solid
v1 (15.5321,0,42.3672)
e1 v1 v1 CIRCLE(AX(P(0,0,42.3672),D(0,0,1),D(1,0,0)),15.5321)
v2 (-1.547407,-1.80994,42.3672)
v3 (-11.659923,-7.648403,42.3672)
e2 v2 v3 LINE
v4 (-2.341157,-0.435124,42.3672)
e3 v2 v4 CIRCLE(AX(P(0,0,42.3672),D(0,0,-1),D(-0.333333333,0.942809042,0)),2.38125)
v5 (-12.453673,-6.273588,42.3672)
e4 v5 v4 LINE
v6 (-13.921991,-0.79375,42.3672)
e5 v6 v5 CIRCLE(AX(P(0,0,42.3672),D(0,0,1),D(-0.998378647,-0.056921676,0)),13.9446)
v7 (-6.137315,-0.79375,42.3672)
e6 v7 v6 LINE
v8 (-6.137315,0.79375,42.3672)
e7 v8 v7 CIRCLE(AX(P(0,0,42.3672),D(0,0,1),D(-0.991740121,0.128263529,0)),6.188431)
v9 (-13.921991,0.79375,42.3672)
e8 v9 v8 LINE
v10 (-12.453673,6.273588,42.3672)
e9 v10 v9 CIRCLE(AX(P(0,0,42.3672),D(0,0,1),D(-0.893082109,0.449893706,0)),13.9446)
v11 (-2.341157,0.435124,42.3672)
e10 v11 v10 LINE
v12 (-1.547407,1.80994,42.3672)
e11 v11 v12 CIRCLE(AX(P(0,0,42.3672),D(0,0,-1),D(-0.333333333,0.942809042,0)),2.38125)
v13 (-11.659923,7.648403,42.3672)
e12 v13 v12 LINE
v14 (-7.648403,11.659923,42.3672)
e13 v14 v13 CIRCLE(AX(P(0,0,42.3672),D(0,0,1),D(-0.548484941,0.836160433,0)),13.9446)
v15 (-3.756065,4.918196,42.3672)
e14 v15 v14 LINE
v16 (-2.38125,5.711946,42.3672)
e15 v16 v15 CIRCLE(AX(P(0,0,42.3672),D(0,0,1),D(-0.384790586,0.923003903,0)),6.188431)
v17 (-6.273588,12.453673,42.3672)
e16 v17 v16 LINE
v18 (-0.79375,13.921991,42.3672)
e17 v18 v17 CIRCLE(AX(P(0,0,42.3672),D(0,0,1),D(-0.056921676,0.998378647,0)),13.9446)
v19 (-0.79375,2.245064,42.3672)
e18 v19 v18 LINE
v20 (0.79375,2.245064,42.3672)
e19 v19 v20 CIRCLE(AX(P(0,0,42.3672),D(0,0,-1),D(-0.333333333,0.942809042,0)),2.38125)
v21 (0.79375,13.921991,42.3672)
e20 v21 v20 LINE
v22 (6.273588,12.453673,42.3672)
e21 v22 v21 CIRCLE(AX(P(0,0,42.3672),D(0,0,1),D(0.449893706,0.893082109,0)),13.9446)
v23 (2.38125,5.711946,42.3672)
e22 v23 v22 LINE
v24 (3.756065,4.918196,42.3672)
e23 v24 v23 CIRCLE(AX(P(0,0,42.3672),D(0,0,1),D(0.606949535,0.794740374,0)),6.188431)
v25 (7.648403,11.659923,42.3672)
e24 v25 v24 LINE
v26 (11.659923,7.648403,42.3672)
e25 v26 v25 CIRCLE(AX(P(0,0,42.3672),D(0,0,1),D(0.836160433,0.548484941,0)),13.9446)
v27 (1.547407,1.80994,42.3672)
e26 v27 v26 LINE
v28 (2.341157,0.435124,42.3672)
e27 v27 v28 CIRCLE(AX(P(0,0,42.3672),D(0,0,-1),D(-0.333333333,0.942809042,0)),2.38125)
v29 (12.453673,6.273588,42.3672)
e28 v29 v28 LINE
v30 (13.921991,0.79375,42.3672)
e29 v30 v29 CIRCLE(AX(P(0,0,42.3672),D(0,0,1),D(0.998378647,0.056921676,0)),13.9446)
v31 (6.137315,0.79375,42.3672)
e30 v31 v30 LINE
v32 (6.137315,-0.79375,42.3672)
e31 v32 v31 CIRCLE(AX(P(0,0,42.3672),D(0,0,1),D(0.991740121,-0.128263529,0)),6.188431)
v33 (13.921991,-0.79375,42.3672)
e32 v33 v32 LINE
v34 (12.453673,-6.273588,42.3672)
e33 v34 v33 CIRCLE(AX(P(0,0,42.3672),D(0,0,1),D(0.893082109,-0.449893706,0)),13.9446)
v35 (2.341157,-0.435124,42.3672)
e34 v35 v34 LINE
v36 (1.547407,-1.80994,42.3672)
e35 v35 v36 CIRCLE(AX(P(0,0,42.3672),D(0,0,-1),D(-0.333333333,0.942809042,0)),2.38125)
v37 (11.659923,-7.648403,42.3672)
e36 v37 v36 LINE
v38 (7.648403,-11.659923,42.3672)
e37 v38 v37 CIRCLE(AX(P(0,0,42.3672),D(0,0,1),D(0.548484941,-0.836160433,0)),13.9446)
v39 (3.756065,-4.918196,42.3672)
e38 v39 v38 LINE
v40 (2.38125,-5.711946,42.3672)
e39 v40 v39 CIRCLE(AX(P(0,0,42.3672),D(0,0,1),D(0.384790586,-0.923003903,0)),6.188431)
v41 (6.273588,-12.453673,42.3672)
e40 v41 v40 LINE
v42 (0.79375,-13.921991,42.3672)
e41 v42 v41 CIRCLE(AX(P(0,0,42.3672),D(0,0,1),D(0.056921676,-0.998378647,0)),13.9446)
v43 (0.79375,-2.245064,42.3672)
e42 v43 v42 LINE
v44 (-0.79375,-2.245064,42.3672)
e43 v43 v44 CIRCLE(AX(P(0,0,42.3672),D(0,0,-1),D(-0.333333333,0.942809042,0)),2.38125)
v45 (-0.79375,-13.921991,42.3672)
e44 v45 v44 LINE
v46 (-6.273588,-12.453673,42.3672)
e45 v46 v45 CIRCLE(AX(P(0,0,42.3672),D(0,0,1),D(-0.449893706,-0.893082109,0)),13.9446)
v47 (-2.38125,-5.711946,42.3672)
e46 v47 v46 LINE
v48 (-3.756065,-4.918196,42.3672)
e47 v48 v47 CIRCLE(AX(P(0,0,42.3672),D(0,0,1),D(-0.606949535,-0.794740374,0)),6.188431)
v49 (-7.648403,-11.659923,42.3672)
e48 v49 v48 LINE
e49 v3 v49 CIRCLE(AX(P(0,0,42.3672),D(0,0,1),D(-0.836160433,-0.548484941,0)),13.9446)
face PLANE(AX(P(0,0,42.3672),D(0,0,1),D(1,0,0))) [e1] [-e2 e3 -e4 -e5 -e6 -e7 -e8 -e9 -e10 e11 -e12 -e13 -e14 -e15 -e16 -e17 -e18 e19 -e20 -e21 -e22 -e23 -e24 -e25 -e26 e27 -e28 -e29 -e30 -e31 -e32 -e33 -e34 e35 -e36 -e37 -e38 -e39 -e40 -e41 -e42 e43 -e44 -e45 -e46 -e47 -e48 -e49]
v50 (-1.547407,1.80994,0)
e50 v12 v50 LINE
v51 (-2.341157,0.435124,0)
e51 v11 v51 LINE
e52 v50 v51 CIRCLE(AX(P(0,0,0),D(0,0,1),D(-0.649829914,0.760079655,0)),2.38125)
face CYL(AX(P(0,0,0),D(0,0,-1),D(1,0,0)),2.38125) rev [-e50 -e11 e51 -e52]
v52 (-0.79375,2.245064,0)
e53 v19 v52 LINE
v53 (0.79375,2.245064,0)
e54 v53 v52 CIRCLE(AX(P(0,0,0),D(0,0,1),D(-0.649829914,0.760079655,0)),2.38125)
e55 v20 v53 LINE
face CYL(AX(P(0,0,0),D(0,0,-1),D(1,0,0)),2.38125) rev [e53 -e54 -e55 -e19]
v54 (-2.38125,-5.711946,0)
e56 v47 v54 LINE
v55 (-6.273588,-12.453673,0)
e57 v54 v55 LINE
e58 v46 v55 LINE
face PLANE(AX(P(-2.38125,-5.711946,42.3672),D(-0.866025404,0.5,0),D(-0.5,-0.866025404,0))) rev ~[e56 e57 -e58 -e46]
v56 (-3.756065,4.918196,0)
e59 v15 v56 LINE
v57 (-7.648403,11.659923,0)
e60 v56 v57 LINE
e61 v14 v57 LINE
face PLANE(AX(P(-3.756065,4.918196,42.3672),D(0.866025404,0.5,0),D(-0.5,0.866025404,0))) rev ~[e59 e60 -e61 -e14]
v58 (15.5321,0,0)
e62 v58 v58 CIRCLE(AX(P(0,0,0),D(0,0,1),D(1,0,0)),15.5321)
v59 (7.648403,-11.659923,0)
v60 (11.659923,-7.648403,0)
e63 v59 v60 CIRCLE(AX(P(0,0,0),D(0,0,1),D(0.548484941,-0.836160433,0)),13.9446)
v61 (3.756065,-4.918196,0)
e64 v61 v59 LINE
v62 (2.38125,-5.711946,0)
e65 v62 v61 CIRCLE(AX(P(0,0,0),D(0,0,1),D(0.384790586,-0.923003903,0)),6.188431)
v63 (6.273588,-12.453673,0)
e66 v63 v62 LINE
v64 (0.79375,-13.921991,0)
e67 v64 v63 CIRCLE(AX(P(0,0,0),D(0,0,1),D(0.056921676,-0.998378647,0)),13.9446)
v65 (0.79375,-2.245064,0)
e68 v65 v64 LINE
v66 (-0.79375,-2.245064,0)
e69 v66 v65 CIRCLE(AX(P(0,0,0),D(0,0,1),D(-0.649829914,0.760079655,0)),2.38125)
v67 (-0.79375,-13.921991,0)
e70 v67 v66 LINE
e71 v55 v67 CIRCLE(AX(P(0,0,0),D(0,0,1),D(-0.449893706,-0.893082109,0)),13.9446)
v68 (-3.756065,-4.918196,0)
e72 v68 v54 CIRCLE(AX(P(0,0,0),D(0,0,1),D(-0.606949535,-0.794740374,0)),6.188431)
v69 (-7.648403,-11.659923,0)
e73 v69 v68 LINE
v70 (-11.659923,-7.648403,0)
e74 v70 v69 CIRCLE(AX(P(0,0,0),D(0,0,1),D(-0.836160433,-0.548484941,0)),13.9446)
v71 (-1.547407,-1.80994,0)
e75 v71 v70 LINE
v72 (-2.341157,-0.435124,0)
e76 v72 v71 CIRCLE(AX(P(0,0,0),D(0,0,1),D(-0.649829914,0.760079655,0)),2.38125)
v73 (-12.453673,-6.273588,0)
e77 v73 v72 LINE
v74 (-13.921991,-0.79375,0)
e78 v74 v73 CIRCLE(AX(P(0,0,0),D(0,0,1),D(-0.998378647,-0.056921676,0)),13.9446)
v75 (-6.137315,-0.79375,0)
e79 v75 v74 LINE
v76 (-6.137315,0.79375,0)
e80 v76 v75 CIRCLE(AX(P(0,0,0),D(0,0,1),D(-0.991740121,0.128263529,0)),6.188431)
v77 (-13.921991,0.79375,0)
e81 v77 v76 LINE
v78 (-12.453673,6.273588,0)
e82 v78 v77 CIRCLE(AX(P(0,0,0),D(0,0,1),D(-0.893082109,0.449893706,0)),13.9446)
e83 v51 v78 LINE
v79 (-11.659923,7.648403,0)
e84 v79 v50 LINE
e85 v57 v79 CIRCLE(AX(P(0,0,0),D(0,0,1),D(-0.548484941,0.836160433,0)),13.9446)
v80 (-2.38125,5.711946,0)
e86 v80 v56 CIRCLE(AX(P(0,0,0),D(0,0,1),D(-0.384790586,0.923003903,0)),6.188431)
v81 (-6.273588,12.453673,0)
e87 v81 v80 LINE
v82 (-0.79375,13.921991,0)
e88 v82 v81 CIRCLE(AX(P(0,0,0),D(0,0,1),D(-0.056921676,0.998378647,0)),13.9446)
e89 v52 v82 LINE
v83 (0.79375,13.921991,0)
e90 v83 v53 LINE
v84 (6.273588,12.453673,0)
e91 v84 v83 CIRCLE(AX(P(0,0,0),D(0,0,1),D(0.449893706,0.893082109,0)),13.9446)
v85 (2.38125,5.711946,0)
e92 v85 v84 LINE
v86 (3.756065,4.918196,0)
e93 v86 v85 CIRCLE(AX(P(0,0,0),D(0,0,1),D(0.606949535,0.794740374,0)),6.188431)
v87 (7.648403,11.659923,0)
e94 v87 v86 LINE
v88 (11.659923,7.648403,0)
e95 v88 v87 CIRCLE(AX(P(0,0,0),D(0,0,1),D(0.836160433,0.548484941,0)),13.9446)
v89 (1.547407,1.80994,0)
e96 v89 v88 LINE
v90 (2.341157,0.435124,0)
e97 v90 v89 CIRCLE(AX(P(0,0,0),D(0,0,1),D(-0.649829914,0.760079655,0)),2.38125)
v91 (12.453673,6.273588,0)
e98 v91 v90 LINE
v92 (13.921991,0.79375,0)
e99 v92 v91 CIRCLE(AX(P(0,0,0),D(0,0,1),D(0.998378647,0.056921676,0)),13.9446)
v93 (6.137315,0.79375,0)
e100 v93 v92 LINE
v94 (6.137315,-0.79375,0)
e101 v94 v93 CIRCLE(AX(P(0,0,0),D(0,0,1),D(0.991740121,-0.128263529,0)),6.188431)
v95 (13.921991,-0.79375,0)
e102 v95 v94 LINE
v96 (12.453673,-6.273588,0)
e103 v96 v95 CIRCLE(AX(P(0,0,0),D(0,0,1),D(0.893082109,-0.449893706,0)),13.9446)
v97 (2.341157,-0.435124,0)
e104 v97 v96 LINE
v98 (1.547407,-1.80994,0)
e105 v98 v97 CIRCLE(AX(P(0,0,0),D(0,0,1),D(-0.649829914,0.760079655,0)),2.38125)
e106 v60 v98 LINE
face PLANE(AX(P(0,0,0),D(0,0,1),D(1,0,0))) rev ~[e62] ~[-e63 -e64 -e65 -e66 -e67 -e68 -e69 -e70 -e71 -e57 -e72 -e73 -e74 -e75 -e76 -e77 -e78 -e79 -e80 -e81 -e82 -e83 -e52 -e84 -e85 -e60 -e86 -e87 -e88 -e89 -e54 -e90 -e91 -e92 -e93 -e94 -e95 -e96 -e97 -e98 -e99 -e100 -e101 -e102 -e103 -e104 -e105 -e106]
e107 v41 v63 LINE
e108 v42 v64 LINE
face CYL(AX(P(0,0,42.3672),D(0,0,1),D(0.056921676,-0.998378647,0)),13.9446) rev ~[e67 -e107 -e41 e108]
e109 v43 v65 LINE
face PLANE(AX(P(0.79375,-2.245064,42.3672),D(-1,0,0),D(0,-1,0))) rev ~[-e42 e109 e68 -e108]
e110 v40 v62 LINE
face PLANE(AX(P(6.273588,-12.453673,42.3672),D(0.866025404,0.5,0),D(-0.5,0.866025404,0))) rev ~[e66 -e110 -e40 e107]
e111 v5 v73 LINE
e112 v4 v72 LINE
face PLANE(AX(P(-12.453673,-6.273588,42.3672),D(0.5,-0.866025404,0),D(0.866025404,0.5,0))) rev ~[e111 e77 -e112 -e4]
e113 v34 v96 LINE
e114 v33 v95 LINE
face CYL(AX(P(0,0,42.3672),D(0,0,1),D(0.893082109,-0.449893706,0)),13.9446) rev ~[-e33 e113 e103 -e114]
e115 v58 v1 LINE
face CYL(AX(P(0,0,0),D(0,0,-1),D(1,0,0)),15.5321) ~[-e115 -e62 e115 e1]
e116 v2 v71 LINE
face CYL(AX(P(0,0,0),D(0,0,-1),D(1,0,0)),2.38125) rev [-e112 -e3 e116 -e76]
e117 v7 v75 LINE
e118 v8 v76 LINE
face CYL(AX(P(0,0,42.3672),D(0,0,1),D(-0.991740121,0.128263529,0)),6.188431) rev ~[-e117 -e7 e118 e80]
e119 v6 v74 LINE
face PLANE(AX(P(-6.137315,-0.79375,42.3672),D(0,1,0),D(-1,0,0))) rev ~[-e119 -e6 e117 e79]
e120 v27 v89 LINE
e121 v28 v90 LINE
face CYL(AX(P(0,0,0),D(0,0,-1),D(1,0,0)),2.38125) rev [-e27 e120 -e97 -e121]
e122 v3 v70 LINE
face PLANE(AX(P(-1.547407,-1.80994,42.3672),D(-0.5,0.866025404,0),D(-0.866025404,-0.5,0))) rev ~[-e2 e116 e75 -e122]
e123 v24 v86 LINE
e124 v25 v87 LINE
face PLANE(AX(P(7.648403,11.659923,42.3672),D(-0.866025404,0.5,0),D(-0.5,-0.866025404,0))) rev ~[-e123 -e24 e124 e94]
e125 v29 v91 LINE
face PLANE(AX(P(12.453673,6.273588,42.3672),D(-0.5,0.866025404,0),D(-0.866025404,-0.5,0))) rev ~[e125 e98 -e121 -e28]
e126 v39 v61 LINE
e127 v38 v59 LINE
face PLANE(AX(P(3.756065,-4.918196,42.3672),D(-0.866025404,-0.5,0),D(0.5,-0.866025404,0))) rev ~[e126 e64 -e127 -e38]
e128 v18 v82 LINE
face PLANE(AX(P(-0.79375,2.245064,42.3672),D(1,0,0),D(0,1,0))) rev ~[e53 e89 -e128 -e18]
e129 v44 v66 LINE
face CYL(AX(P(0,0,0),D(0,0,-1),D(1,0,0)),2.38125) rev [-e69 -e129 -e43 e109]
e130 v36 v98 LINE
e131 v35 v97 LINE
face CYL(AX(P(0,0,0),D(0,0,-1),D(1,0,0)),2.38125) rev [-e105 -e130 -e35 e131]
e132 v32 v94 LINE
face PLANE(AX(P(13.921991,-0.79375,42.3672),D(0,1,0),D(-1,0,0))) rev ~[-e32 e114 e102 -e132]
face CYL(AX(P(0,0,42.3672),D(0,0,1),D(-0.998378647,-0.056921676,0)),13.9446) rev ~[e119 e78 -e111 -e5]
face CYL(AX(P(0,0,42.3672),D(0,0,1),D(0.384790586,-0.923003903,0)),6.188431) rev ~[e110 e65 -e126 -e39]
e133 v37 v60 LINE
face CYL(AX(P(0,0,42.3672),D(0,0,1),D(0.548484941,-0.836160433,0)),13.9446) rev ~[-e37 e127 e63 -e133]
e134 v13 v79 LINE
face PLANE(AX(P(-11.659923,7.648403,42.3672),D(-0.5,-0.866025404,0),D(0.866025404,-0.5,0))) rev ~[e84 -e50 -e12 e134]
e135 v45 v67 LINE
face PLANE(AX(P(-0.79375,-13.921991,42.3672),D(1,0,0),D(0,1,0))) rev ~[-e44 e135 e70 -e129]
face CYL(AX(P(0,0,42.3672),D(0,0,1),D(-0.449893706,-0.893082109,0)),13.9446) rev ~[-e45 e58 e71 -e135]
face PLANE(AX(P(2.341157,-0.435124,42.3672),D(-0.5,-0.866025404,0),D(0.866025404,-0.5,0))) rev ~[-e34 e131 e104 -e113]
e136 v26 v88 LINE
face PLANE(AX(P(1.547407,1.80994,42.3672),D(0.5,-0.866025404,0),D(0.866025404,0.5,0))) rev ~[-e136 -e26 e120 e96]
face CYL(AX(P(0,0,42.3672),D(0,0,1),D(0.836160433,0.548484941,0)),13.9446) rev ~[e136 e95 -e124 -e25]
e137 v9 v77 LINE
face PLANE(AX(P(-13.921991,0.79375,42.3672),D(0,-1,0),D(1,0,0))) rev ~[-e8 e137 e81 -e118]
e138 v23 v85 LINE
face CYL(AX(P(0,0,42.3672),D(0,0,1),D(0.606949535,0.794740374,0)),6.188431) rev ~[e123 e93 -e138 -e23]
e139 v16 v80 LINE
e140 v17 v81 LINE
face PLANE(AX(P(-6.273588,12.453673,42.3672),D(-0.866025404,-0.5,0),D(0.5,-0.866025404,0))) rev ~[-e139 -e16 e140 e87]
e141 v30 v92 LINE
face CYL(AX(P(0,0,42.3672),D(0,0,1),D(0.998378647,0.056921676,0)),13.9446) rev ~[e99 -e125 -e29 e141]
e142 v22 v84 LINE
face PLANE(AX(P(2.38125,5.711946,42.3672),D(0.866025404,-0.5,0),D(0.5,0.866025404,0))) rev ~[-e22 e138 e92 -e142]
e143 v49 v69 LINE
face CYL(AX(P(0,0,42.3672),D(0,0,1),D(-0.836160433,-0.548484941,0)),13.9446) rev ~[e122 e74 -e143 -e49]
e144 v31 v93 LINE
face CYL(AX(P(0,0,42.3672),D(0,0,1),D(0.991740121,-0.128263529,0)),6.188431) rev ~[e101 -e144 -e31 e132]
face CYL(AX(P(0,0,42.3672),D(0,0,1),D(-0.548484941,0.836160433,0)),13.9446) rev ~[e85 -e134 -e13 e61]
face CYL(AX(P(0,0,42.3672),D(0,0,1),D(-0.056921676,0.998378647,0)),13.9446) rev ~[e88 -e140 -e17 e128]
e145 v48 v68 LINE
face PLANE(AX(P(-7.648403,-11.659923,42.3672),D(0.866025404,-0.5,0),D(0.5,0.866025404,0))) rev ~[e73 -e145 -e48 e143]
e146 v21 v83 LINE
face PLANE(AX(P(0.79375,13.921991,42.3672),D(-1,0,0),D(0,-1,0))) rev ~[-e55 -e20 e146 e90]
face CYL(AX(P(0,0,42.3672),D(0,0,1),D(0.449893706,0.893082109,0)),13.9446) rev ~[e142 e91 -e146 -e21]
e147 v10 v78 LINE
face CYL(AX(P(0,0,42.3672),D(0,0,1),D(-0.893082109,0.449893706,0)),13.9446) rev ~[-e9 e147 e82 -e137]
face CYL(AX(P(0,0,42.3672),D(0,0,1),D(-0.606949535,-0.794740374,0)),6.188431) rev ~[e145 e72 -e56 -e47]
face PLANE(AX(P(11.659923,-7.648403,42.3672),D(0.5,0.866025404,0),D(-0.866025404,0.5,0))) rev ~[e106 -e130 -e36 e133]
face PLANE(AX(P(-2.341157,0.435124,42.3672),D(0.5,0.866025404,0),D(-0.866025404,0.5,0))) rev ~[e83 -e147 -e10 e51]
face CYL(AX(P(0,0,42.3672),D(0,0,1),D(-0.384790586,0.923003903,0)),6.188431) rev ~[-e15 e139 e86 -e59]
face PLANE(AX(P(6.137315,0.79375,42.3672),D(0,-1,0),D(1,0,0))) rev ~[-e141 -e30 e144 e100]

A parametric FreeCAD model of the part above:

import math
import FreeCAD as App
import Part
import Sketcher
Q = App.Units.Quantity

doc = App.newDocument("Part")
body = doc.addObject("PartDesign::Body", "Body")

sketch1 = body.newObject("Sketcher::SketchObject", "Sketch")
sketch1.AttachmentSupport = (doc.getObject("XY_Plane"), [""])
sketch1.MapMode = "FlatFace"
sketch1.addGeometry(Part.Circle(App.Vector(0, 0, 0), App.Vector(0, 0, 1), 15.5321), False)
sketch1.addGeometry(Part.Circle(App.Vector(0, 0, 0), App.Vector(0, 0, 1), 2.38125), False)
sketch1.addConstraint(Sketcher.Constraint("Coincident", 0, 3, -1, 1))
sketch1.addConstraint(Sketcher.Constraint("Coincident", 1, 3, -1, 1))
sketch1.addConstraint(Sketcher.Constraint("Diameter", 0, Q("1.223 in")))
sketch1.addConstraint(Sketcher.Constraint("Diameter", 1, Q("0.1875 in")))
pad1 = body.newObject("PartDesign::Pad", "Pad")
pad1.Profile = sketch1
pad1.Length = Q("1.668 in")

sketch2 = body.newObject("Sketcher::SketchObject", "Sketch001")
sketch2.AttachmentSupport = (doc.getObject("XY_Plane"), [""])
sketch2.MapMode = "FlatFace"
sketch2.AttachmentOffset = App.Placement(App.Vector(0, 0, 1.668 * 25.4), App.Rotation())
sketch2.addGeometry(Part.ArcOfCircle(Part.Circle(App.Vector(0, 0, 0), App.Vector(0, 0, 1), 2.38125), math.radians(109.471221), math.radians(130.528779)), False)
sketch2.addGeometry(Part.LineSegment(App.Vector(-0.79375, 2.245064, 0), App.Vector(-0.79375, 13.921991, 0)), False)
sketch2.addGeometry(Part.ArcOfCircle(Part.Circle(App.Vector(0, 0, 0), App.Vector(0, 0, 1), 13.9446), math.radians(93.263136), math.radians(116.736864)), False)
sketch2.addGeometry(Part.LineSegment(App.Vector(-6.273588, 12.453673, 0), App.Vector(-2.38125, 5.711946, 0)), False)
sketch2.addGeometry(Part.ArcOfCircle(Part.Circle(App.Vector(0, 0, 0), App.Vector(0, 0, 1), 6.188431), math.radians(112.63074), math.radians(127.36926)), False)
sketch2.addGeometry(Part.LineSegment(App.Vector(-3.756065, 4.918196, 0), App.Vector(-7.648403, 11.659923, 0)), False)
sketch2.addGeometry(Part.ArcOfCircle(Part.Circle(App.Vector(0, 0, 0), App.Vector(0, 0, 1), 13.9446), math.radians(123.263136), math.radians(146.736864)), False)
sketch2.addGeometry(Part.LineSegment(App.Vector(-11.659923, 7.648403, 0), App.Vector(-1.547407, 1.80994, 0)), False)
sketch2.addConstraint(Sketcher.Constraint("Coincident", 0, 1, 1, 1))
sketch2.addConstraint(Sketcher.Constraint("Coincident", 1, 2, 2, 1))
sketch2.addConstraint(Sketcher.Constraint("Coincident", 2, 2, 3, 1))
sketch2.addConstraint(Sketcher.Constraint("Coincident", 3, 2, 4, 1))
sketch2.addConstraint(Sketcher.Constraint("Coincident", 4, 2, 5, 1))
sketch2.addConstraint(Sketcher.Constraint("Coincident", 5, 2, 6, 1))
sketch2.addConstraint(Sketcher.Constraint("Coincident", 6, 2, 7, 1))
sketch2.addConstraint(Sketcher.Constraint("Coincident", 7, 2, 0, 2))
sketch2.addConstraint(Sketcher.Constraint("Vertical", 1))
sketch2.addConstraint(Sketcher.Constraint("Coincident", 0, 3, -1, 1))
sketch2.addConstraint(Sketcher.Constraint("Coincident", 2, 3, -1, 1))
sketch2.addConstraint(Sketcher.Constraint("Coincident", 4, 3, -1, 1))
sketch2.addConstraint(Sketcher.Constraint("Coincident", 6, 3, -1, 1))
sketch2.addConstraint(Sketcher.Constraint("Equal", 2, 6))
sketch2.addConstraint(Sketcher.Constraint("Parallel", 3, 5))
sketch2.addConstraint(Sketcher.Constraint("Equal", 3, 5))
sketch2.addConstraint(Sketcher.Constraint("Angle", 3, Q("-60 deg")))
sketch2.addConstraint(Sketcher.Constraint("Angle", 7, Q("-30 deg")))
sketch2.addConstraint(Sketcher.Constraint("Radius", 0, Q("0.09375 in")))
sketch2.addConstraint(Sketcher.Constraint("Radius", 2, Q("0.549 in")))
sketch2.addConstraint(Sketcher.Constraint("DistanceX", 0, 1, -1, 1, Q("0.03125 in")))
sketch2.addConstraint(Sketcher.Constraint("DistanceX", 3, 2, -1, 1, Q("0.09375 in")))
sketch2.addConstraint(Sketcher.Constraint("Radius", 4, Q("6.188431 mm")))
sketch2.addConstraint(Sketcher.Constraint("DistanceY", -1, 1, 7, 2, Q("1.80994 mm")))
pocket1 = body.newObject("PartDesign::Pocket", "Pocket")
pocket1.Profile = sketch2
pocket1.Type = "ThroughAll"
doc.recompute()

polarpattern = body.newObject("PartDesign::PolarPattern", "PolarPattern")
polarpattern.Originals = [pocket1]
polarpattern.Axis = (doc.getObject("Z_Axis"), [""])
polarpattern.Angle = 360
polarpattern.Occurrences = 6
body.Tip = polarpattern

doc.recompute()
